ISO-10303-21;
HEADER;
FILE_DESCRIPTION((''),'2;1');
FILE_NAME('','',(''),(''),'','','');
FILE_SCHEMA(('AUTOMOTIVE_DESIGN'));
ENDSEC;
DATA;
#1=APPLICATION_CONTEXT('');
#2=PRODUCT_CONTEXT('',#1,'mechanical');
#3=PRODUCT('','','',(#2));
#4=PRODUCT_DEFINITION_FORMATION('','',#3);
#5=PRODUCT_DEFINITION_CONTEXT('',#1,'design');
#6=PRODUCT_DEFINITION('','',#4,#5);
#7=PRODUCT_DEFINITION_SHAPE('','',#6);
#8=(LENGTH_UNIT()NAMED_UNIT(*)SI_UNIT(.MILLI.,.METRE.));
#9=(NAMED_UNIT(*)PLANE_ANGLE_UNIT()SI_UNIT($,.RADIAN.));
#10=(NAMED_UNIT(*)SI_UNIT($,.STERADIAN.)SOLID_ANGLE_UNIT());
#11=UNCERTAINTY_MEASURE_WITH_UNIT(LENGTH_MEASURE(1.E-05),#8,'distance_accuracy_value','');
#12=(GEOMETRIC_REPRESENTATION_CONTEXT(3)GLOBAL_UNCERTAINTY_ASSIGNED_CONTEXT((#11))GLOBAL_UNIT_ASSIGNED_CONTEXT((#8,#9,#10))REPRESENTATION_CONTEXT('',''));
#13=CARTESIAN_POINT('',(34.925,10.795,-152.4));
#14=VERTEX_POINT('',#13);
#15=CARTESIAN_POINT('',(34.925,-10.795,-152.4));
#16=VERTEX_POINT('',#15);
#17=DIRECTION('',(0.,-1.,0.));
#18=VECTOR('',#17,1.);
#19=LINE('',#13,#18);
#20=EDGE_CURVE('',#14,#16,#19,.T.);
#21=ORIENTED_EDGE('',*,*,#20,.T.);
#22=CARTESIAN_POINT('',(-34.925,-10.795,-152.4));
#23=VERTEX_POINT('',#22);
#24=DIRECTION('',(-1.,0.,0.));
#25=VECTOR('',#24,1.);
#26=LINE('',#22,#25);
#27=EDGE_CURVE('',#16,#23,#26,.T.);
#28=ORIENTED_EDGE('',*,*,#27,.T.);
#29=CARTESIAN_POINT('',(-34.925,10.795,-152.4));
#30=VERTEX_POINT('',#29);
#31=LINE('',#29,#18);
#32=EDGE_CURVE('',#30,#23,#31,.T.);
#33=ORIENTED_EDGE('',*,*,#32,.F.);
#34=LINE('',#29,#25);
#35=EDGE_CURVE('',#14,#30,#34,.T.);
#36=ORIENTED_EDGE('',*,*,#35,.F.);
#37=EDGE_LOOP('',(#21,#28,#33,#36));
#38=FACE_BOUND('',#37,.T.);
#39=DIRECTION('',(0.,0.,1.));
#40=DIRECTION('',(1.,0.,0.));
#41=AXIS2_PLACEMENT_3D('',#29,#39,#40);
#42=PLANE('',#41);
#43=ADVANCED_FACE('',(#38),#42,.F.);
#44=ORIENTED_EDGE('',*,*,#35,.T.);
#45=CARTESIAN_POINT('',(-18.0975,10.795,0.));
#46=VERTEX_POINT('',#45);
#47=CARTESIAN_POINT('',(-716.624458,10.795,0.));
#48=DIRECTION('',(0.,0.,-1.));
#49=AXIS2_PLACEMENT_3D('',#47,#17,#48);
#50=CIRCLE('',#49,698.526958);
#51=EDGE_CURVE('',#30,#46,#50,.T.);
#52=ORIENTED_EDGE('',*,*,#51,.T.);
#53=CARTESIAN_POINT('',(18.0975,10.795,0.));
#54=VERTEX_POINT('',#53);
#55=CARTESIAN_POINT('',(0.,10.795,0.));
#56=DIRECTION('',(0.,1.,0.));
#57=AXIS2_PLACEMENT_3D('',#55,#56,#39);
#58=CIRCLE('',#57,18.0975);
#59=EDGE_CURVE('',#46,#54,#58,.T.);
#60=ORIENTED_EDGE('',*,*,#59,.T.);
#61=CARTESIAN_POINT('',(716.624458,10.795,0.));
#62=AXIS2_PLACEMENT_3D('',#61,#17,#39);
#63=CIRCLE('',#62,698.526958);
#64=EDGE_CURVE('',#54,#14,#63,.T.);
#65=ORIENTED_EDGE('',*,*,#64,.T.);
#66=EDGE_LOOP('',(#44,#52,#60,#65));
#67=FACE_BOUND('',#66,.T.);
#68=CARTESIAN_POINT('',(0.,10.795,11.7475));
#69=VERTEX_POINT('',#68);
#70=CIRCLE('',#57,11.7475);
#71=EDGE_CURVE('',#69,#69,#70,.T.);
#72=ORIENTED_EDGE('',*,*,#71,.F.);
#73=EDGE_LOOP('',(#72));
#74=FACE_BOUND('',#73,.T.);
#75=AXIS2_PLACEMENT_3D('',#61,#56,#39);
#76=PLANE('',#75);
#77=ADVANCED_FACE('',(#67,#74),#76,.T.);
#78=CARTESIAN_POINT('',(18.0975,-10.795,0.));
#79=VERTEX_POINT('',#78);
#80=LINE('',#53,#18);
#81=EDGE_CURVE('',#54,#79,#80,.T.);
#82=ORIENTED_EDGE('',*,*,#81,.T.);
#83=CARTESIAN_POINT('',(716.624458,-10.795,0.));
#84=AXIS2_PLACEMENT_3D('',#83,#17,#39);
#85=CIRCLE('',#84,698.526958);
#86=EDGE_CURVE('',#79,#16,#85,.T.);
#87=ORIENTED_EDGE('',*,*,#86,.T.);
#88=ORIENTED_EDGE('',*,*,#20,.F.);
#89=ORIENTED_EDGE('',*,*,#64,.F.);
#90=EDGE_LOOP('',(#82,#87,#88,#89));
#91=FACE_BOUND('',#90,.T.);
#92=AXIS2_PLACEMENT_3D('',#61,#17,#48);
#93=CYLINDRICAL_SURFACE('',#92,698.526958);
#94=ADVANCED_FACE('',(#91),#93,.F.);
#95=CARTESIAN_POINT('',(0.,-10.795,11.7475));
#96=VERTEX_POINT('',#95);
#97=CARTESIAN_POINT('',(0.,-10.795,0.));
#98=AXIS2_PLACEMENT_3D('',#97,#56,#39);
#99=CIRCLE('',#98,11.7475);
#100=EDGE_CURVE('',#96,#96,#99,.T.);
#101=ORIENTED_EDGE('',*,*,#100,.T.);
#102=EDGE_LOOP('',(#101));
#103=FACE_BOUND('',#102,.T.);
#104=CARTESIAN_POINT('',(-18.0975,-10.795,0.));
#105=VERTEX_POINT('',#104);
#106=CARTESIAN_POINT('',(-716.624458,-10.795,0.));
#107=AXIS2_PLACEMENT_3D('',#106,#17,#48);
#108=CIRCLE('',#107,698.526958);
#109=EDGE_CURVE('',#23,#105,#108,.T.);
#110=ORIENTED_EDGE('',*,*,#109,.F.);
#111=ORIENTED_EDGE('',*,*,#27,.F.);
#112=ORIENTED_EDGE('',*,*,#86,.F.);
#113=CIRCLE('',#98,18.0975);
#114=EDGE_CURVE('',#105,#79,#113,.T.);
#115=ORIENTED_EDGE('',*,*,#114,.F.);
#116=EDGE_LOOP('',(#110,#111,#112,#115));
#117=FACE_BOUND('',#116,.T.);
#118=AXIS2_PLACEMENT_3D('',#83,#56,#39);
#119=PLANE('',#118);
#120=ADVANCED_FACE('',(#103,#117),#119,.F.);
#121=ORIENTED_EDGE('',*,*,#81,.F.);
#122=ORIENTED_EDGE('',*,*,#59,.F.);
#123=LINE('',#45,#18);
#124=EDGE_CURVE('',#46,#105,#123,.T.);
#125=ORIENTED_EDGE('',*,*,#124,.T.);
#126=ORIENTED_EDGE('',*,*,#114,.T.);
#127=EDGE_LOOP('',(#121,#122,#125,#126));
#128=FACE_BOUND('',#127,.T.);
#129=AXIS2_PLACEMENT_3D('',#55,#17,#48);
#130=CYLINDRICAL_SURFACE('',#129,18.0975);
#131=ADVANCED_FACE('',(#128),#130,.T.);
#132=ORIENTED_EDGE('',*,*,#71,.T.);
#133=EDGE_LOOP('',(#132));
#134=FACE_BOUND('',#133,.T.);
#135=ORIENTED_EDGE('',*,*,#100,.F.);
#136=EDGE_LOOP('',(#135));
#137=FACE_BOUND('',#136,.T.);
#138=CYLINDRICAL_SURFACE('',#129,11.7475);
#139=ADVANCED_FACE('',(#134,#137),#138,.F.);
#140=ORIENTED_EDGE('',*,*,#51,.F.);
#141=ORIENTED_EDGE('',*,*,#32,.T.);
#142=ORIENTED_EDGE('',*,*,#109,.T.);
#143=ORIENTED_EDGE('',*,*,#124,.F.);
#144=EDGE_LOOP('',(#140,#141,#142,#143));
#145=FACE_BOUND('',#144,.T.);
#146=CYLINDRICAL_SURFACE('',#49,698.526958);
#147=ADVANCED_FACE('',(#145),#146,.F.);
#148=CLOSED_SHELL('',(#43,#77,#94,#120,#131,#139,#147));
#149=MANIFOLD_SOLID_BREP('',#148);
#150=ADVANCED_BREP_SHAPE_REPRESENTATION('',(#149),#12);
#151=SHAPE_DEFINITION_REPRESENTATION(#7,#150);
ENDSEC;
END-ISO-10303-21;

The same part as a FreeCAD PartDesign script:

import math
import FreeCAD as App
import Part
import Sketcher

V = App.Vector
Q = App.Units.Quantity

doc = App.newDocument("Part")
body = doc.addObject("PartDesign::Body", "Body")

# Sketch on XZ plane
sketch1 = doc.addObject("Sketcher::SketchObject", "Sketch")
body.addObject(sketch1)
sketch1.AttachmentSupport = (doc.XZ_Plane, [""])
sketch1.MapMode = "FlatFace"
sketch1.addGeometry(Part.LineSegment(V(35, -152, 0), V(-35, -152, 0)), False)
sketch1.addGeometry(Part.ArcOfCircle(Part.Circle(V(-717, 0, 0), V(0, 0, 1), 699), math.radians(-12.6), math.radians(0)), False)
sketch1.addGeometry(Part.ArcOfCircle(Part.Circle(V(0, 0, 0), V(0, 0, 1), 18), math.radians(0), math.radians(180)), False)
sketch1.addGeometry(Part.ArcOfCircle(Part.Circle(V(717, 0, 0), V(0, 0, 1), 699), math.radians(180), math.radians(192.6)), False)
sketch1.addGeometry(Part.Circle(V(0, 0, 0), V(0, 0, 1), 12), False)
sketch1.addConstraint(Sketcher.Constraint("Coincident", 0, 2, 1, 1))
sketch1.addConstraint(Sketcher.Constraint("Tangent", 1, 2, 2, 2))
sketch1.addConstraint(Sketcher.Constraint("Tangent", 2, 1, 3, 1))
sketch1.addConstraint(Sketcher.Constraint("Coincident", 3, 2, 0, 1))
sketch1.addConstraint(Sketcher.Constraint("Horizontal", 0))
sketch1.addConstraint(Sketcher.Constraint("Coincident", 2, 3, -1, 1))
sketch1.addConstraint(Sketcher.Constraint("Coincident", 4, 3, -1, 1))
sketch1.addConstraint(Sketcher.Constraint("Equal", 1, 3))
sketch1.addConstraint(Sketcher.Constraint("PointOnObject", 1, 3, -1))
sketch1.addConstraint(Sketcher.Constraint("PointOnObject", 3, 3, -1))
sketch1.addConstraint(Sketcher.Constraint("Diameter", 4, Q("0.925 in")))
sketch1.addConstraint(Sketcher.Constraint("DistanceY", 0, 2, -1, 1, Q("6 in")))
sketch1.addConstraint(Sketcher.Constraint("DistanceX", 0, 2, 0, 1, Q("2.75 in")))
sketch1.addConstraint(Sketcher.Constraint("Radius", 2, Q("0.7125 in")))
pad1 = doc.addObject("PartDesign::Pad", "Pad")
body.addObject(pad1)
pad1.Profile = sketch1
pad1.Length = Q("0.85 in")
pad1.Midplane = True

doc.recompute()
